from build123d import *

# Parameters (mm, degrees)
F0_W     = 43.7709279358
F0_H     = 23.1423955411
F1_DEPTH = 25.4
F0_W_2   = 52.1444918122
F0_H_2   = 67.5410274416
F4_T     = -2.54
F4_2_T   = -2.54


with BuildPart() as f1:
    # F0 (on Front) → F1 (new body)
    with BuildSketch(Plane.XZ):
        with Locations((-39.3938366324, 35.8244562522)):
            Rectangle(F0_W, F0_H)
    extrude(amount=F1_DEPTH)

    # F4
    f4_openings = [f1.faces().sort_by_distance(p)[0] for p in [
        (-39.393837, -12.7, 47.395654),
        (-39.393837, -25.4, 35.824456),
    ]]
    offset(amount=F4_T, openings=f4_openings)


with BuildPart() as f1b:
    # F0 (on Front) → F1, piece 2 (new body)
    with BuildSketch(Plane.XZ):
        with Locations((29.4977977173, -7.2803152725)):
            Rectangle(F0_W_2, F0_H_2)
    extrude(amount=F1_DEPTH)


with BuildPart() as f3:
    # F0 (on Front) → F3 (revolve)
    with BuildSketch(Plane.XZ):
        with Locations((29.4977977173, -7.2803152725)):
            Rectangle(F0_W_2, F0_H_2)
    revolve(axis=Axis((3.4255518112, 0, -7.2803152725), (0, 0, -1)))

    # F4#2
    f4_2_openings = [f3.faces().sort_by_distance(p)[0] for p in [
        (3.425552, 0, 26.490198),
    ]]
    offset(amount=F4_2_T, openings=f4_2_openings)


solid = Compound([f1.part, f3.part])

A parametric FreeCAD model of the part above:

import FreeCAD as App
import Part
import Sketcher
from FreeCAD import Vector
Q = App.Units.Quantity


def faces_at(feature, points):
    """Names of the faces that lie closest to the given points."""
    faces = feature.Shape.Faces
    near = lambda p: min(range(len(faces)), key=lambda i: faces[i].distToShape(Part.Vertex(*p))[0])
    return sorted({f"Face{near(p) + 1}" for p in points})

doc = App.newDocument("Part")
body = doc.addObject("PartDesign::Body", "Body")

# Sketch on XZ plane
sketch1 = body.newObject("Sketcher::SketchObject", "Sketch")
sketch1.AttachmentSupport = (doc.getObject("XZ_Plane"), [""])
sketch1.MapMode = "FlatFace"
sketch1.addGeometry(Part.LineSegment(Vector(-61, 47, 0), Vector(-61, 24, 0)), False)
sketch1.addGeometry(Part.LineSegment(Vector(-61, 24, 0), Vector(-18, 24, 0)), False)
sketch1.addGeometry(Part.LineSegment(Vector(-18, 24, 0), Vector(-18, 47, 0)), False)
sketch1.addGeometry(Part.LineSegment(Vector(-18, 47, 0), Vector(-61, 47, 0)), False)
sketch1.addConstraint(Sketcher.Constraint("Coincident", 0, 2, 1, 1))
sketch1.addConstraint(Sketcher.Constraint("Coincident", 1, 2, 2, 1))
sketch1.addConstraint(Sketcher.Constraint("Coincident", 2, 2, 3, 1))
sketch1.addConstraint(Sketcher.Constraint("Coincident", 3, 2, 0, 1))
sketch1.addConstraint(Sketcher.Constraint("Vertical", 0))
sketch1.addConstraint(Sketcher.Constraint("Horizontal", 1))
sketch1.addConstraint(Sketcher.Constraint("Vertical", 2))
sketch1.addConstraint(Sketcher.Constraint("Horizontal", 3))
sketch1.addConstraint(Sketcher.Constraint("DistanceX", 0, 2, -1, 1, Q("61.279301 mm")))
sketch1.addConstraint(Sketcher.Constraint("DistanceX", 1, 1, 1, 2, Q("43.770928 mm")))
sketch1.addConstraint(Sketcher.Constraint("DistanceY", 0, 2, 0, 1, Q("23.142396 mm")))
sketch1.addConstraint(Sketcher.Constraint("DistanceY", -1, 1, 0, 2, Q("24.253258 mm")))
pad1 = body.newObject("PartDesign::Pad", "Pad")
pad1.Profile = sketch1
pad1.Length = Q("1 in")
doc.recompute()

thickness = body.newObject("PartDesign::Thickness", "Thickness")
thickness.Base = (pad1, faces_at(pad1, [(-39.394, -12.7, 47.396), (-39.394, -25.4, 35.824)]))
thickness.Value = Q("0.1 in")
thickness.Reversed = True
thickness.Join = "Arc"
body2 = doc.addObject("PartDesign::Body", "Body001")

# Sketch on XZ plane
sketch2 = body2.newObject("Sketcher::SketchObject", "Sketch001")
sketch2.AttachmentSupport = (doc.getObject("XZ_Plane001"), [""])
sketch2.MapMode = "FlatFace"
sketch2.addGeometry(Part.LineSegment(Vector(3, 26, 0), Vector(3, -41, 0)), False)
sketch2.addGeometry(Part.LineSegment(Vector(3, -41, 0), Vector(56, -41, 0)), False)
sketch2.addGeometry(Part.LineSegment(Vector(56, -41, 0), Vector(56, 26, 0)), False)
sketch2.addGeometry(Part.LineSegment(Vector(56, 26, 0), Vector(3, 26, 0)), False)
sketch2.addConstraint(Sketcher.Constraint("Coincident", 0, 2, 1, 1))
sketch2.addConstraint(Sketcher.Constraint("Coincident", 1, 2, 2, 1))
sketch2.addConstraint(Sketcher.Constraint("Coincident", 2, 2, 3, 1))
sketch2.addConstraint(Sketcher.Constraint("Coincident", 3, 2, 0, 1))
sketch2.addConstraint(Sketcher.Constraint("Vertical", 0))
sketch2.addConstraint(Sketcher.Constraint("Horizontal", 1))
sketch2.addConstraint(Sketcher.Constraint("Vertical", 2))
sketch2.addConstraint(Sketcher.Constraint("Horizontal", 3))
sketch2.addConstraint(Sketcher.Constraint("DistanceX", 1, 1, 1, 2, Q("52.144492 mm")))
sketch2.addConstraint(Sketcher.Constraint("DistanceY", -1, 1, 2, 2, Q("26.490198 mm")))
sketch2.addConstraint(Sketcher.Constraint("DistanceY", 0, 2, 0, 1, Q("67.541027 mm")))
sketch2.addConstraint(Sketcher.Constraint("DistanceX", -1, 1, 0, 2, Q("3.425552 mm")))
pad2 = body2.newObject("PartDesign::Pad", "Pad001")
pad2.Profile = sketch2
pad2.Length = Q("1 in")
body3 = doc.addObject("PartDesign::Body", "Body002")

# Sketch on XZ plane
sketch3 = body3.newObject("Sketcher::SketchObject", "Sketch002")
sketch3.AttachmentSupport = (doc.getObject("XZ_Plane002"), [""])
sketch3.MapMode = "FlatFace"
sketch3.addGeometry(Part.LineSegment(Vector(3, 26, 0), Vector(3, -41, 0)), False)
sketch3.addGeometry(Part.LineSegment(Vector(3, -41, 0), Vector(56, -41, 0)), False)
sketch3.addGeometry(Part.LineSegment(Vector(56, -41, 0), Vector(56, 26, 0)), False)
sketch3.addGeometry(Part.LineSegment(Vector(56, 26, 0), Vector(3, 26, 0)), False)
sketch3.addGeometry(Part.LineSegment(Vector(3, 26, 0), Vector(3, -41, 0)), True)  # axis
sketch3.addConstraint(Sketcher.Constraint("Coincident", 0, 2, 1, 1))
sketch3.addConstraint(Sketcher.Constraint("Coincident", 1, 2, 2, 1))
sketch3.addConstraint(Sketcher.Constraint("Coincident", 2, 2, 3, 1))
sketch3.addConstraint(Sketcher.Constraint("Coincident", 3, 2, 0, 1))
sketch3.addConstraint(Sketcher.Constraint("Vertical", 0))
sketch3.addConstraint(Sketcher.Constraint("Horizontal", 1))
sketch3.addConstraint(Sketcher.Constraint("Vertical", 2))
sketch3.addConstraint(Sketcher.Constraint("Horizontal", 3))
sketch3.addConstraint(Sketcher.Constraint("Vertical", 4))
sketch3.addConstraint(Sketcher.Constraint("Coincident", 4, 1, 3, 2))
sketch3.addConstraint(Sketcher.Constraint("Horizontal", 1, 2, 4, 2))
sketch3.addConstraint(Sketcher.Constraint("DistanceX", 1, 1, 1, 2, Q("52.144492 mm")))
sketch3.addConstraint(Sketcher.Constraint("DistanceY", -1, 1, 2, 2, Q("26.490198 mm")))
sketch3.addConstraint(Sketcher.Constraint("DistanceY", 0, 2, 0, 1, Q("67.541027 mm")))
sketch3.addConstraint(Sketcher.Constraint("DistanceX", -1, 1, 0, 2, Q("3.425552 mm")))
revolution = body3.newObject("PartDesign::Revolution", "Revolution")
revolution.Profile = sketch3
revolution.ReferenceAxis = (sketch3, ["Axis0"])
revolution.Angle = 360
doc.recompute()

thickness2 = body3.newObject("PartDesign::Thickness", "Thickness001")
thickness2.Base = (revolution, faces_at(revolution, [(3.426, 0, 26.49)]))
thickness2.Value = Q("0.1 in")
thickness2.Reversed = True
thickness2.Join = "Arc"
body2.Visibility = False

doc.recompute()
